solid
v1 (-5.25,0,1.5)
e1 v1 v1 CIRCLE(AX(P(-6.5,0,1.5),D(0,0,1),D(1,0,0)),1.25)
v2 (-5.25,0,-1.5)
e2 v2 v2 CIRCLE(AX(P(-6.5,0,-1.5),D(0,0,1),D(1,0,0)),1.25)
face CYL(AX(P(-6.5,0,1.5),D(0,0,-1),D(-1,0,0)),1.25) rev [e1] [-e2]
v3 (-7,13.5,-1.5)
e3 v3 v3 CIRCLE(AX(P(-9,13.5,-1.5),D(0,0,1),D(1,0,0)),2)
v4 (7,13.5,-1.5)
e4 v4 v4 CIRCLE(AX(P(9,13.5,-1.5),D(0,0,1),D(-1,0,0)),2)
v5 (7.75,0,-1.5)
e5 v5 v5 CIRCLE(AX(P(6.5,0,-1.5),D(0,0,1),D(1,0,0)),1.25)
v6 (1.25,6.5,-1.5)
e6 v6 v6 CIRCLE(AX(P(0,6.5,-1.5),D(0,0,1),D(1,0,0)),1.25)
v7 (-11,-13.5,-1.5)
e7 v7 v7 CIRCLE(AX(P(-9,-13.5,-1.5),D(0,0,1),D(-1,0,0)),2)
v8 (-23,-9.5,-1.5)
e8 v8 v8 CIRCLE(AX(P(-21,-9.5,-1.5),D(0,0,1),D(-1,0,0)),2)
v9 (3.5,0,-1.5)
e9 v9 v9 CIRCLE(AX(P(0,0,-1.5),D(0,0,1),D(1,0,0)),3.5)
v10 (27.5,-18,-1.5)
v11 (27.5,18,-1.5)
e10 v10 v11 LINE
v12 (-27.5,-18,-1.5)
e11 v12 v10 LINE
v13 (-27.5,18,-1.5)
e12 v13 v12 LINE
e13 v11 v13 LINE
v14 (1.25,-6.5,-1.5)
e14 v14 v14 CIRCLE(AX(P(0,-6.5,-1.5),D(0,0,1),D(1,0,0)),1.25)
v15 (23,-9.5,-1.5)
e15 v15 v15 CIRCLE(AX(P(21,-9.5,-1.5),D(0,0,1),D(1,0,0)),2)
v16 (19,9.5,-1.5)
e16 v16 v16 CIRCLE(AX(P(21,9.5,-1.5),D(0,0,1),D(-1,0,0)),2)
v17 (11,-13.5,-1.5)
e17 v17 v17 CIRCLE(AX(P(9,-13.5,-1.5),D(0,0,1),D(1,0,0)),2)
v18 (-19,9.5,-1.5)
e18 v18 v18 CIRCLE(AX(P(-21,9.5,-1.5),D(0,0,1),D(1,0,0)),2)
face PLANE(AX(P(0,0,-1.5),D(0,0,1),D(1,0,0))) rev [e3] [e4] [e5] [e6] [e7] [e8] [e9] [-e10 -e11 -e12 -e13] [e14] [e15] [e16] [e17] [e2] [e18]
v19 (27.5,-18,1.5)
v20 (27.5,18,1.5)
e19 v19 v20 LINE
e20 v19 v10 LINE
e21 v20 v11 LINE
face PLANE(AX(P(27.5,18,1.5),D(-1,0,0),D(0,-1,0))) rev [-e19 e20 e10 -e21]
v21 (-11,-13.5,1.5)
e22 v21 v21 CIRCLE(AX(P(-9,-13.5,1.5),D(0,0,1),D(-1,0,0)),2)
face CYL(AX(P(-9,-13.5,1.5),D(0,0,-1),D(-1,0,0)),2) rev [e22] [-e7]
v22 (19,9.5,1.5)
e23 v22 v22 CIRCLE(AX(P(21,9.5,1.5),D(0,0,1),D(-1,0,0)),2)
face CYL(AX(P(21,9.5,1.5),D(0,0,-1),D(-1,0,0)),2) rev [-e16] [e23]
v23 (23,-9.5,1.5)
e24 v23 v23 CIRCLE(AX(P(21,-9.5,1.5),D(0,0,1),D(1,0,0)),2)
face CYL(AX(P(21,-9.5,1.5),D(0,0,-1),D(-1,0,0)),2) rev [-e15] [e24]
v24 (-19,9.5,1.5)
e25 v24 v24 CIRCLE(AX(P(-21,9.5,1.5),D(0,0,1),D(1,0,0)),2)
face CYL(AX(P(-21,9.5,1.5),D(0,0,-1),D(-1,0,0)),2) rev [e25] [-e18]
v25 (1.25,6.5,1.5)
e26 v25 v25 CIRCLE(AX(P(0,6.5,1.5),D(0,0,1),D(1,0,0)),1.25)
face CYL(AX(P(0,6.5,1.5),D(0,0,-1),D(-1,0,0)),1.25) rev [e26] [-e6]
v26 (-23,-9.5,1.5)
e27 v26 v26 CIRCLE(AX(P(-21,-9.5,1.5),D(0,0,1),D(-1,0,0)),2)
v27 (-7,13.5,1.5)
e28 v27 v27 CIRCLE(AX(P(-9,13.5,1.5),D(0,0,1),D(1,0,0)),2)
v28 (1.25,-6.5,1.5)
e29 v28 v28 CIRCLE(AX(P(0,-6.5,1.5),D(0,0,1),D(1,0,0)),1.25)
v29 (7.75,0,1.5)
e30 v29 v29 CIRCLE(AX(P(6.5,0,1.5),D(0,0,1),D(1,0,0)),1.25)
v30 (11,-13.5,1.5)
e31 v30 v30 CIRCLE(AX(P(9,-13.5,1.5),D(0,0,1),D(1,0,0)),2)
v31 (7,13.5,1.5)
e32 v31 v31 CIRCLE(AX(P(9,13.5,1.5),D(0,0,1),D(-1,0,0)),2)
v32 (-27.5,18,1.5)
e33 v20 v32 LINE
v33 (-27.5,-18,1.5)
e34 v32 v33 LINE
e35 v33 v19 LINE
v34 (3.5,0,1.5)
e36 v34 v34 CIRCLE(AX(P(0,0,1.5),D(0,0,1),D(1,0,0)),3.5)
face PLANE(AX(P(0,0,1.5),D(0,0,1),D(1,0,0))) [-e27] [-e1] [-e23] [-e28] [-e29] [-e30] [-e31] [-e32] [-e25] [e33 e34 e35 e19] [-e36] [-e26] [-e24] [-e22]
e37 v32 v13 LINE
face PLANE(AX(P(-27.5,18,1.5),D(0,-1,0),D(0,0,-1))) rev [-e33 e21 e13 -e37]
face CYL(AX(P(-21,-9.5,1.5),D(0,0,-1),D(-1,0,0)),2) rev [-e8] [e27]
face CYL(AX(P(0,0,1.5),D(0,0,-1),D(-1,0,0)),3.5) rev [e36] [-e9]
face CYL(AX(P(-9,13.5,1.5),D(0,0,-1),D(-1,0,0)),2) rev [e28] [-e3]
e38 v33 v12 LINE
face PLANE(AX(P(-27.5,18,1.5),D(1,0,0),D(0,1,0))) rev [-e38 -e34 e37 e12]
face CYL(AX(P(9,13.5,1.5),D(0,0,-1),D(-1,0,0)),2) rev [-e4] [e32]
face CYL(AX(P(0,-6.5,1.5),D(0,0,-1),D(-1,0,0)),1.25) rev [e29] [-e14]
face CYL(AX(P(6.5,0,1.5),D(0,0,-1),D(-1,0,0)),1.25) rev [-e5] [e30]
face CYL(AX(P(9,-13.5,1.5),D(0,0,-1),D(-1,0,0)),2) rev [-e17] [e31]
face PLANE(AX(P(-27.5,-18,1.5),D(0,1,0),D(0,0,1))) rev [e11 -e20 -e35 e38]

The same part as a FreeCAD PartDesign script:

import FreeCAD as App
import Part
import Sketcher
Q = App.Units.Quantity

doc = App.newDocument("Part")
body = doc.addObject("PartDesign::Body", "Body")

# Sketch on XY plane
sketch1 = body.newObject("Sketcher::SketchObject", "Sketch")
sketch1.AttachmentSupport = (doc.getObject("XY_Plane"), [""])
sketch1.MapMode = "FlatFace"
sketch1.addGeometry(Part.LineSegment(App.Vector(-27.5, 18, 0), App.Vector(-27.5, -18, 0)), False)
sketch1.addGeometry(Part.LineSegment(App.Vector(-27.5, -18, 0), App.Vector(27.5, -18, 0)), False)
sketch1.addGeometry(Part.LineSegment(App.Vector(27.5, -18, 0), App.Vector(27.5, 18, 0)), False)
sketch1.addGeometry(Part.LineSegment(App.Vector(27.5, 18, 0), App.Vector(-27.5, 18, 0)), False)
sketch1.addGeometry(Part.Circle(App.Vector(-21, -9.5, 0), App.Vector(0, 0, 1), 2), False)
sketch1.addGeometry(Part.Circle(App.Vector(-9, -13.5, 0), App.Vector(0, 0, 1), 2), False)
sketch1.addGeometry(Part.Circle(App.Vector(9, -13.5, 0), App.Vector(0, 0, 1), 2), False)
sketch1.addGeometry(Part.Circle(App.Vector(21, -9.5, 0), App.Vector(0, 0, 1), 2), False)
sketch1.addGeometry(Part.Circle(App.Vector(0, -6.5, 0), App.Vector(0, 0, 1), 1.25), False)
sketch1.addGeometry(Part.Circle(App.Vector(-6.5, 0, 0), App.Vector(0, 0, 1), 1.25), False)
sketch1.addGeometry(Part.Circle(App.Vector(-21, 9.5, 0), App.Vector(0, 0, 1), 2), False)
sketch1.addGeometry(Part.Circle(App.Vector(-9, 13.5, 0), App.Vector(0, 0, 1), 2), False)
sketch1.addGeometry(Part.Circle(App.Vector(0, 0, 0), App.Vector(0, 0, 1), 3.5), False)
sketch1.addGeometry(Part.Circle(App.Vector(6.5, 0, 0), App.Vector(0, 0, 1), 1.25), False)
sketch1.addGeometry(Part.Circle(App.Vector(0, 6.5, 0), App.Vector(0, 0, 1), 1.25), False)
sketch1.addGeometry(Part.Circle(App.Vector(9, 13.5, 0), App.Vector(0, 0, 1), 2), False)
sketch1.addGeometry(Part.Circle(App.Vector(21, 9.5, 0), App.Vector(0, 0, 1), 2), False)
sketch1.addConstraint(Sketcher.Constraint("Coincident", 0, 2, 1, 1))
sketch1.addConstraint(Sketcher.Constraint("Coincident", 1, 2, 2, 1))
sketch1.addConstraint(Sketcher.Constraint("Coincident", 2, 2, 3, 1))
sketch1.addConstraint(Sketcher.Constraint("Coincident", 3, 2, 0, 1))
sketch1.addConstraint(Sketcher.Constraint("Vertical", 0))
sketch1.addConstraint(Sketcher.Constraint("Horizontal", 1))
sketch1.addConstraint(Sketcher.Constraint("Vertical", 2))
sketch1.addConstraint(Sketcher.Constraint("Horizontal", 3))
sketch1.addConstraint(Sketcher.Constraint("Coincident", 12, 3, -1, 1))
sketch1.addConstraint(Sketcher.Constraint("Equal", 4, 5))
sketch1.addConstraint(Sketcher.Constraint("Equal", 5, 6))
sketch1.addConstraint(Sketcher.Constraint("Equal", 6, 7))
sketch1.addConstraint(Sketcher.Constraint("Equal", 8, 9))
sketch1.addConstraint(Sketcher.Constraint("Equal", 7, 10))
sketch1.addConstraint(Sketcher.Constraint("Equal", 10, 11))
sketch1.addConstraint(Sketcher.Constraint("Equal", 9, 13))
sketch1.addConstraint(Sketcher.Constraint("Equal", 13, 14))
sketch1.addConstraint(Sketcher.Constraint("Equal", 11, 15))
sketch1.addConstraint(Sketcher.Constraint("Equal", 15, 16))
sketch1.addConstraint(Sketcher.Constraint("Symmetric", 7, 3, 10, 3, -1, 1))
sketch1.addConstraint(Sketcher.Constraint("Symmetric", 6, 3, 11, 3, -1, 1))
sketch1.addConstraint(Sketcher.Constraint("Symmetric", 9, 3, 13, 3, -1, 1))
sketch1.addConstraint(Sketcher.Constraint("Symmetric", 8, 3, 14, 3, -1, 1))
sketch1.addConstraint(Sketcher.Constraint("Symmetric", 5, 3, 15, 3, -1, 1))
sketch1.addConstraint(Sketcher.Constraint("Symmetric", 4, 3, 16, 3, -1, 1))
sketch1.addConstraint(Sketcher.Constraint("Symmetric", 0, 2, 2, 2, -1, 1))
sketch1.addConstraint(Sketcher.Constraint("Symmetric", 5, 3, 6, 3, -2))
sketch1.addConstraint(Sketcher.Constraint("Symmetric", 4, 3, 7, 3, -2))
sketch1.addConstraint(Sketcher.Constraint("PointOnObject", 8, 3, -2))
sketch1.addConstraint(Sketcher.Constraint("PointOnObject", 9, 3, -1))
sketch1.addConstraint(Sketcher.Constraint("Diameter", 4, Q("4 mm")))
sketch1.addConstraint(Sketcher.Constraint("Diameter", 12, Q("7 mm")))
sketch1.addConstraint(Sketcher.Constraint("Diameter", 8, Q("2.5 mm")))
sketch1.addConstraint(Sketcher.Constraint("DistanceX", 1, 1, 1, 2, Q("55 mm")))
sketch1.addConstraint(Sketcher.Constraint("DistanceY", 0, 2, 0, 1, Q("36 mm")))
sketch1.addConstraint(Sketcher.Constraint("DistanceX", 4, 3, -1, 1, Q("21 mm")))
sketch1.addConstraint(Sketcher.Constraint("DistanceX", 5, 3, -1, 1, Q("9 mm")))
sketch1.addConstraint(Sketcher.Constraint("DistanceY", 5, 3, 4, 3, Q("4 mm")))
sketch1.addConstraint(Sketcher.Constraint("DistanceY", 5, 3, 8, 3, Q("7 mm")))
sketch1.addConstraint(Sketcher.Constraint("DistanceY", 4, 3, 10, 3, Q("19 mm")))
sketch1.addConstraint(Sketcher.Constraint("DistanceX", 9, 3, 13, 3, Q("13 mm")))
pad1 = body.newObject("PartDesign::Pad", "Pad")
pad1.Profile = sketch1
pad1.Length = 3
pad1.Midplane = True

doc.recompute()
